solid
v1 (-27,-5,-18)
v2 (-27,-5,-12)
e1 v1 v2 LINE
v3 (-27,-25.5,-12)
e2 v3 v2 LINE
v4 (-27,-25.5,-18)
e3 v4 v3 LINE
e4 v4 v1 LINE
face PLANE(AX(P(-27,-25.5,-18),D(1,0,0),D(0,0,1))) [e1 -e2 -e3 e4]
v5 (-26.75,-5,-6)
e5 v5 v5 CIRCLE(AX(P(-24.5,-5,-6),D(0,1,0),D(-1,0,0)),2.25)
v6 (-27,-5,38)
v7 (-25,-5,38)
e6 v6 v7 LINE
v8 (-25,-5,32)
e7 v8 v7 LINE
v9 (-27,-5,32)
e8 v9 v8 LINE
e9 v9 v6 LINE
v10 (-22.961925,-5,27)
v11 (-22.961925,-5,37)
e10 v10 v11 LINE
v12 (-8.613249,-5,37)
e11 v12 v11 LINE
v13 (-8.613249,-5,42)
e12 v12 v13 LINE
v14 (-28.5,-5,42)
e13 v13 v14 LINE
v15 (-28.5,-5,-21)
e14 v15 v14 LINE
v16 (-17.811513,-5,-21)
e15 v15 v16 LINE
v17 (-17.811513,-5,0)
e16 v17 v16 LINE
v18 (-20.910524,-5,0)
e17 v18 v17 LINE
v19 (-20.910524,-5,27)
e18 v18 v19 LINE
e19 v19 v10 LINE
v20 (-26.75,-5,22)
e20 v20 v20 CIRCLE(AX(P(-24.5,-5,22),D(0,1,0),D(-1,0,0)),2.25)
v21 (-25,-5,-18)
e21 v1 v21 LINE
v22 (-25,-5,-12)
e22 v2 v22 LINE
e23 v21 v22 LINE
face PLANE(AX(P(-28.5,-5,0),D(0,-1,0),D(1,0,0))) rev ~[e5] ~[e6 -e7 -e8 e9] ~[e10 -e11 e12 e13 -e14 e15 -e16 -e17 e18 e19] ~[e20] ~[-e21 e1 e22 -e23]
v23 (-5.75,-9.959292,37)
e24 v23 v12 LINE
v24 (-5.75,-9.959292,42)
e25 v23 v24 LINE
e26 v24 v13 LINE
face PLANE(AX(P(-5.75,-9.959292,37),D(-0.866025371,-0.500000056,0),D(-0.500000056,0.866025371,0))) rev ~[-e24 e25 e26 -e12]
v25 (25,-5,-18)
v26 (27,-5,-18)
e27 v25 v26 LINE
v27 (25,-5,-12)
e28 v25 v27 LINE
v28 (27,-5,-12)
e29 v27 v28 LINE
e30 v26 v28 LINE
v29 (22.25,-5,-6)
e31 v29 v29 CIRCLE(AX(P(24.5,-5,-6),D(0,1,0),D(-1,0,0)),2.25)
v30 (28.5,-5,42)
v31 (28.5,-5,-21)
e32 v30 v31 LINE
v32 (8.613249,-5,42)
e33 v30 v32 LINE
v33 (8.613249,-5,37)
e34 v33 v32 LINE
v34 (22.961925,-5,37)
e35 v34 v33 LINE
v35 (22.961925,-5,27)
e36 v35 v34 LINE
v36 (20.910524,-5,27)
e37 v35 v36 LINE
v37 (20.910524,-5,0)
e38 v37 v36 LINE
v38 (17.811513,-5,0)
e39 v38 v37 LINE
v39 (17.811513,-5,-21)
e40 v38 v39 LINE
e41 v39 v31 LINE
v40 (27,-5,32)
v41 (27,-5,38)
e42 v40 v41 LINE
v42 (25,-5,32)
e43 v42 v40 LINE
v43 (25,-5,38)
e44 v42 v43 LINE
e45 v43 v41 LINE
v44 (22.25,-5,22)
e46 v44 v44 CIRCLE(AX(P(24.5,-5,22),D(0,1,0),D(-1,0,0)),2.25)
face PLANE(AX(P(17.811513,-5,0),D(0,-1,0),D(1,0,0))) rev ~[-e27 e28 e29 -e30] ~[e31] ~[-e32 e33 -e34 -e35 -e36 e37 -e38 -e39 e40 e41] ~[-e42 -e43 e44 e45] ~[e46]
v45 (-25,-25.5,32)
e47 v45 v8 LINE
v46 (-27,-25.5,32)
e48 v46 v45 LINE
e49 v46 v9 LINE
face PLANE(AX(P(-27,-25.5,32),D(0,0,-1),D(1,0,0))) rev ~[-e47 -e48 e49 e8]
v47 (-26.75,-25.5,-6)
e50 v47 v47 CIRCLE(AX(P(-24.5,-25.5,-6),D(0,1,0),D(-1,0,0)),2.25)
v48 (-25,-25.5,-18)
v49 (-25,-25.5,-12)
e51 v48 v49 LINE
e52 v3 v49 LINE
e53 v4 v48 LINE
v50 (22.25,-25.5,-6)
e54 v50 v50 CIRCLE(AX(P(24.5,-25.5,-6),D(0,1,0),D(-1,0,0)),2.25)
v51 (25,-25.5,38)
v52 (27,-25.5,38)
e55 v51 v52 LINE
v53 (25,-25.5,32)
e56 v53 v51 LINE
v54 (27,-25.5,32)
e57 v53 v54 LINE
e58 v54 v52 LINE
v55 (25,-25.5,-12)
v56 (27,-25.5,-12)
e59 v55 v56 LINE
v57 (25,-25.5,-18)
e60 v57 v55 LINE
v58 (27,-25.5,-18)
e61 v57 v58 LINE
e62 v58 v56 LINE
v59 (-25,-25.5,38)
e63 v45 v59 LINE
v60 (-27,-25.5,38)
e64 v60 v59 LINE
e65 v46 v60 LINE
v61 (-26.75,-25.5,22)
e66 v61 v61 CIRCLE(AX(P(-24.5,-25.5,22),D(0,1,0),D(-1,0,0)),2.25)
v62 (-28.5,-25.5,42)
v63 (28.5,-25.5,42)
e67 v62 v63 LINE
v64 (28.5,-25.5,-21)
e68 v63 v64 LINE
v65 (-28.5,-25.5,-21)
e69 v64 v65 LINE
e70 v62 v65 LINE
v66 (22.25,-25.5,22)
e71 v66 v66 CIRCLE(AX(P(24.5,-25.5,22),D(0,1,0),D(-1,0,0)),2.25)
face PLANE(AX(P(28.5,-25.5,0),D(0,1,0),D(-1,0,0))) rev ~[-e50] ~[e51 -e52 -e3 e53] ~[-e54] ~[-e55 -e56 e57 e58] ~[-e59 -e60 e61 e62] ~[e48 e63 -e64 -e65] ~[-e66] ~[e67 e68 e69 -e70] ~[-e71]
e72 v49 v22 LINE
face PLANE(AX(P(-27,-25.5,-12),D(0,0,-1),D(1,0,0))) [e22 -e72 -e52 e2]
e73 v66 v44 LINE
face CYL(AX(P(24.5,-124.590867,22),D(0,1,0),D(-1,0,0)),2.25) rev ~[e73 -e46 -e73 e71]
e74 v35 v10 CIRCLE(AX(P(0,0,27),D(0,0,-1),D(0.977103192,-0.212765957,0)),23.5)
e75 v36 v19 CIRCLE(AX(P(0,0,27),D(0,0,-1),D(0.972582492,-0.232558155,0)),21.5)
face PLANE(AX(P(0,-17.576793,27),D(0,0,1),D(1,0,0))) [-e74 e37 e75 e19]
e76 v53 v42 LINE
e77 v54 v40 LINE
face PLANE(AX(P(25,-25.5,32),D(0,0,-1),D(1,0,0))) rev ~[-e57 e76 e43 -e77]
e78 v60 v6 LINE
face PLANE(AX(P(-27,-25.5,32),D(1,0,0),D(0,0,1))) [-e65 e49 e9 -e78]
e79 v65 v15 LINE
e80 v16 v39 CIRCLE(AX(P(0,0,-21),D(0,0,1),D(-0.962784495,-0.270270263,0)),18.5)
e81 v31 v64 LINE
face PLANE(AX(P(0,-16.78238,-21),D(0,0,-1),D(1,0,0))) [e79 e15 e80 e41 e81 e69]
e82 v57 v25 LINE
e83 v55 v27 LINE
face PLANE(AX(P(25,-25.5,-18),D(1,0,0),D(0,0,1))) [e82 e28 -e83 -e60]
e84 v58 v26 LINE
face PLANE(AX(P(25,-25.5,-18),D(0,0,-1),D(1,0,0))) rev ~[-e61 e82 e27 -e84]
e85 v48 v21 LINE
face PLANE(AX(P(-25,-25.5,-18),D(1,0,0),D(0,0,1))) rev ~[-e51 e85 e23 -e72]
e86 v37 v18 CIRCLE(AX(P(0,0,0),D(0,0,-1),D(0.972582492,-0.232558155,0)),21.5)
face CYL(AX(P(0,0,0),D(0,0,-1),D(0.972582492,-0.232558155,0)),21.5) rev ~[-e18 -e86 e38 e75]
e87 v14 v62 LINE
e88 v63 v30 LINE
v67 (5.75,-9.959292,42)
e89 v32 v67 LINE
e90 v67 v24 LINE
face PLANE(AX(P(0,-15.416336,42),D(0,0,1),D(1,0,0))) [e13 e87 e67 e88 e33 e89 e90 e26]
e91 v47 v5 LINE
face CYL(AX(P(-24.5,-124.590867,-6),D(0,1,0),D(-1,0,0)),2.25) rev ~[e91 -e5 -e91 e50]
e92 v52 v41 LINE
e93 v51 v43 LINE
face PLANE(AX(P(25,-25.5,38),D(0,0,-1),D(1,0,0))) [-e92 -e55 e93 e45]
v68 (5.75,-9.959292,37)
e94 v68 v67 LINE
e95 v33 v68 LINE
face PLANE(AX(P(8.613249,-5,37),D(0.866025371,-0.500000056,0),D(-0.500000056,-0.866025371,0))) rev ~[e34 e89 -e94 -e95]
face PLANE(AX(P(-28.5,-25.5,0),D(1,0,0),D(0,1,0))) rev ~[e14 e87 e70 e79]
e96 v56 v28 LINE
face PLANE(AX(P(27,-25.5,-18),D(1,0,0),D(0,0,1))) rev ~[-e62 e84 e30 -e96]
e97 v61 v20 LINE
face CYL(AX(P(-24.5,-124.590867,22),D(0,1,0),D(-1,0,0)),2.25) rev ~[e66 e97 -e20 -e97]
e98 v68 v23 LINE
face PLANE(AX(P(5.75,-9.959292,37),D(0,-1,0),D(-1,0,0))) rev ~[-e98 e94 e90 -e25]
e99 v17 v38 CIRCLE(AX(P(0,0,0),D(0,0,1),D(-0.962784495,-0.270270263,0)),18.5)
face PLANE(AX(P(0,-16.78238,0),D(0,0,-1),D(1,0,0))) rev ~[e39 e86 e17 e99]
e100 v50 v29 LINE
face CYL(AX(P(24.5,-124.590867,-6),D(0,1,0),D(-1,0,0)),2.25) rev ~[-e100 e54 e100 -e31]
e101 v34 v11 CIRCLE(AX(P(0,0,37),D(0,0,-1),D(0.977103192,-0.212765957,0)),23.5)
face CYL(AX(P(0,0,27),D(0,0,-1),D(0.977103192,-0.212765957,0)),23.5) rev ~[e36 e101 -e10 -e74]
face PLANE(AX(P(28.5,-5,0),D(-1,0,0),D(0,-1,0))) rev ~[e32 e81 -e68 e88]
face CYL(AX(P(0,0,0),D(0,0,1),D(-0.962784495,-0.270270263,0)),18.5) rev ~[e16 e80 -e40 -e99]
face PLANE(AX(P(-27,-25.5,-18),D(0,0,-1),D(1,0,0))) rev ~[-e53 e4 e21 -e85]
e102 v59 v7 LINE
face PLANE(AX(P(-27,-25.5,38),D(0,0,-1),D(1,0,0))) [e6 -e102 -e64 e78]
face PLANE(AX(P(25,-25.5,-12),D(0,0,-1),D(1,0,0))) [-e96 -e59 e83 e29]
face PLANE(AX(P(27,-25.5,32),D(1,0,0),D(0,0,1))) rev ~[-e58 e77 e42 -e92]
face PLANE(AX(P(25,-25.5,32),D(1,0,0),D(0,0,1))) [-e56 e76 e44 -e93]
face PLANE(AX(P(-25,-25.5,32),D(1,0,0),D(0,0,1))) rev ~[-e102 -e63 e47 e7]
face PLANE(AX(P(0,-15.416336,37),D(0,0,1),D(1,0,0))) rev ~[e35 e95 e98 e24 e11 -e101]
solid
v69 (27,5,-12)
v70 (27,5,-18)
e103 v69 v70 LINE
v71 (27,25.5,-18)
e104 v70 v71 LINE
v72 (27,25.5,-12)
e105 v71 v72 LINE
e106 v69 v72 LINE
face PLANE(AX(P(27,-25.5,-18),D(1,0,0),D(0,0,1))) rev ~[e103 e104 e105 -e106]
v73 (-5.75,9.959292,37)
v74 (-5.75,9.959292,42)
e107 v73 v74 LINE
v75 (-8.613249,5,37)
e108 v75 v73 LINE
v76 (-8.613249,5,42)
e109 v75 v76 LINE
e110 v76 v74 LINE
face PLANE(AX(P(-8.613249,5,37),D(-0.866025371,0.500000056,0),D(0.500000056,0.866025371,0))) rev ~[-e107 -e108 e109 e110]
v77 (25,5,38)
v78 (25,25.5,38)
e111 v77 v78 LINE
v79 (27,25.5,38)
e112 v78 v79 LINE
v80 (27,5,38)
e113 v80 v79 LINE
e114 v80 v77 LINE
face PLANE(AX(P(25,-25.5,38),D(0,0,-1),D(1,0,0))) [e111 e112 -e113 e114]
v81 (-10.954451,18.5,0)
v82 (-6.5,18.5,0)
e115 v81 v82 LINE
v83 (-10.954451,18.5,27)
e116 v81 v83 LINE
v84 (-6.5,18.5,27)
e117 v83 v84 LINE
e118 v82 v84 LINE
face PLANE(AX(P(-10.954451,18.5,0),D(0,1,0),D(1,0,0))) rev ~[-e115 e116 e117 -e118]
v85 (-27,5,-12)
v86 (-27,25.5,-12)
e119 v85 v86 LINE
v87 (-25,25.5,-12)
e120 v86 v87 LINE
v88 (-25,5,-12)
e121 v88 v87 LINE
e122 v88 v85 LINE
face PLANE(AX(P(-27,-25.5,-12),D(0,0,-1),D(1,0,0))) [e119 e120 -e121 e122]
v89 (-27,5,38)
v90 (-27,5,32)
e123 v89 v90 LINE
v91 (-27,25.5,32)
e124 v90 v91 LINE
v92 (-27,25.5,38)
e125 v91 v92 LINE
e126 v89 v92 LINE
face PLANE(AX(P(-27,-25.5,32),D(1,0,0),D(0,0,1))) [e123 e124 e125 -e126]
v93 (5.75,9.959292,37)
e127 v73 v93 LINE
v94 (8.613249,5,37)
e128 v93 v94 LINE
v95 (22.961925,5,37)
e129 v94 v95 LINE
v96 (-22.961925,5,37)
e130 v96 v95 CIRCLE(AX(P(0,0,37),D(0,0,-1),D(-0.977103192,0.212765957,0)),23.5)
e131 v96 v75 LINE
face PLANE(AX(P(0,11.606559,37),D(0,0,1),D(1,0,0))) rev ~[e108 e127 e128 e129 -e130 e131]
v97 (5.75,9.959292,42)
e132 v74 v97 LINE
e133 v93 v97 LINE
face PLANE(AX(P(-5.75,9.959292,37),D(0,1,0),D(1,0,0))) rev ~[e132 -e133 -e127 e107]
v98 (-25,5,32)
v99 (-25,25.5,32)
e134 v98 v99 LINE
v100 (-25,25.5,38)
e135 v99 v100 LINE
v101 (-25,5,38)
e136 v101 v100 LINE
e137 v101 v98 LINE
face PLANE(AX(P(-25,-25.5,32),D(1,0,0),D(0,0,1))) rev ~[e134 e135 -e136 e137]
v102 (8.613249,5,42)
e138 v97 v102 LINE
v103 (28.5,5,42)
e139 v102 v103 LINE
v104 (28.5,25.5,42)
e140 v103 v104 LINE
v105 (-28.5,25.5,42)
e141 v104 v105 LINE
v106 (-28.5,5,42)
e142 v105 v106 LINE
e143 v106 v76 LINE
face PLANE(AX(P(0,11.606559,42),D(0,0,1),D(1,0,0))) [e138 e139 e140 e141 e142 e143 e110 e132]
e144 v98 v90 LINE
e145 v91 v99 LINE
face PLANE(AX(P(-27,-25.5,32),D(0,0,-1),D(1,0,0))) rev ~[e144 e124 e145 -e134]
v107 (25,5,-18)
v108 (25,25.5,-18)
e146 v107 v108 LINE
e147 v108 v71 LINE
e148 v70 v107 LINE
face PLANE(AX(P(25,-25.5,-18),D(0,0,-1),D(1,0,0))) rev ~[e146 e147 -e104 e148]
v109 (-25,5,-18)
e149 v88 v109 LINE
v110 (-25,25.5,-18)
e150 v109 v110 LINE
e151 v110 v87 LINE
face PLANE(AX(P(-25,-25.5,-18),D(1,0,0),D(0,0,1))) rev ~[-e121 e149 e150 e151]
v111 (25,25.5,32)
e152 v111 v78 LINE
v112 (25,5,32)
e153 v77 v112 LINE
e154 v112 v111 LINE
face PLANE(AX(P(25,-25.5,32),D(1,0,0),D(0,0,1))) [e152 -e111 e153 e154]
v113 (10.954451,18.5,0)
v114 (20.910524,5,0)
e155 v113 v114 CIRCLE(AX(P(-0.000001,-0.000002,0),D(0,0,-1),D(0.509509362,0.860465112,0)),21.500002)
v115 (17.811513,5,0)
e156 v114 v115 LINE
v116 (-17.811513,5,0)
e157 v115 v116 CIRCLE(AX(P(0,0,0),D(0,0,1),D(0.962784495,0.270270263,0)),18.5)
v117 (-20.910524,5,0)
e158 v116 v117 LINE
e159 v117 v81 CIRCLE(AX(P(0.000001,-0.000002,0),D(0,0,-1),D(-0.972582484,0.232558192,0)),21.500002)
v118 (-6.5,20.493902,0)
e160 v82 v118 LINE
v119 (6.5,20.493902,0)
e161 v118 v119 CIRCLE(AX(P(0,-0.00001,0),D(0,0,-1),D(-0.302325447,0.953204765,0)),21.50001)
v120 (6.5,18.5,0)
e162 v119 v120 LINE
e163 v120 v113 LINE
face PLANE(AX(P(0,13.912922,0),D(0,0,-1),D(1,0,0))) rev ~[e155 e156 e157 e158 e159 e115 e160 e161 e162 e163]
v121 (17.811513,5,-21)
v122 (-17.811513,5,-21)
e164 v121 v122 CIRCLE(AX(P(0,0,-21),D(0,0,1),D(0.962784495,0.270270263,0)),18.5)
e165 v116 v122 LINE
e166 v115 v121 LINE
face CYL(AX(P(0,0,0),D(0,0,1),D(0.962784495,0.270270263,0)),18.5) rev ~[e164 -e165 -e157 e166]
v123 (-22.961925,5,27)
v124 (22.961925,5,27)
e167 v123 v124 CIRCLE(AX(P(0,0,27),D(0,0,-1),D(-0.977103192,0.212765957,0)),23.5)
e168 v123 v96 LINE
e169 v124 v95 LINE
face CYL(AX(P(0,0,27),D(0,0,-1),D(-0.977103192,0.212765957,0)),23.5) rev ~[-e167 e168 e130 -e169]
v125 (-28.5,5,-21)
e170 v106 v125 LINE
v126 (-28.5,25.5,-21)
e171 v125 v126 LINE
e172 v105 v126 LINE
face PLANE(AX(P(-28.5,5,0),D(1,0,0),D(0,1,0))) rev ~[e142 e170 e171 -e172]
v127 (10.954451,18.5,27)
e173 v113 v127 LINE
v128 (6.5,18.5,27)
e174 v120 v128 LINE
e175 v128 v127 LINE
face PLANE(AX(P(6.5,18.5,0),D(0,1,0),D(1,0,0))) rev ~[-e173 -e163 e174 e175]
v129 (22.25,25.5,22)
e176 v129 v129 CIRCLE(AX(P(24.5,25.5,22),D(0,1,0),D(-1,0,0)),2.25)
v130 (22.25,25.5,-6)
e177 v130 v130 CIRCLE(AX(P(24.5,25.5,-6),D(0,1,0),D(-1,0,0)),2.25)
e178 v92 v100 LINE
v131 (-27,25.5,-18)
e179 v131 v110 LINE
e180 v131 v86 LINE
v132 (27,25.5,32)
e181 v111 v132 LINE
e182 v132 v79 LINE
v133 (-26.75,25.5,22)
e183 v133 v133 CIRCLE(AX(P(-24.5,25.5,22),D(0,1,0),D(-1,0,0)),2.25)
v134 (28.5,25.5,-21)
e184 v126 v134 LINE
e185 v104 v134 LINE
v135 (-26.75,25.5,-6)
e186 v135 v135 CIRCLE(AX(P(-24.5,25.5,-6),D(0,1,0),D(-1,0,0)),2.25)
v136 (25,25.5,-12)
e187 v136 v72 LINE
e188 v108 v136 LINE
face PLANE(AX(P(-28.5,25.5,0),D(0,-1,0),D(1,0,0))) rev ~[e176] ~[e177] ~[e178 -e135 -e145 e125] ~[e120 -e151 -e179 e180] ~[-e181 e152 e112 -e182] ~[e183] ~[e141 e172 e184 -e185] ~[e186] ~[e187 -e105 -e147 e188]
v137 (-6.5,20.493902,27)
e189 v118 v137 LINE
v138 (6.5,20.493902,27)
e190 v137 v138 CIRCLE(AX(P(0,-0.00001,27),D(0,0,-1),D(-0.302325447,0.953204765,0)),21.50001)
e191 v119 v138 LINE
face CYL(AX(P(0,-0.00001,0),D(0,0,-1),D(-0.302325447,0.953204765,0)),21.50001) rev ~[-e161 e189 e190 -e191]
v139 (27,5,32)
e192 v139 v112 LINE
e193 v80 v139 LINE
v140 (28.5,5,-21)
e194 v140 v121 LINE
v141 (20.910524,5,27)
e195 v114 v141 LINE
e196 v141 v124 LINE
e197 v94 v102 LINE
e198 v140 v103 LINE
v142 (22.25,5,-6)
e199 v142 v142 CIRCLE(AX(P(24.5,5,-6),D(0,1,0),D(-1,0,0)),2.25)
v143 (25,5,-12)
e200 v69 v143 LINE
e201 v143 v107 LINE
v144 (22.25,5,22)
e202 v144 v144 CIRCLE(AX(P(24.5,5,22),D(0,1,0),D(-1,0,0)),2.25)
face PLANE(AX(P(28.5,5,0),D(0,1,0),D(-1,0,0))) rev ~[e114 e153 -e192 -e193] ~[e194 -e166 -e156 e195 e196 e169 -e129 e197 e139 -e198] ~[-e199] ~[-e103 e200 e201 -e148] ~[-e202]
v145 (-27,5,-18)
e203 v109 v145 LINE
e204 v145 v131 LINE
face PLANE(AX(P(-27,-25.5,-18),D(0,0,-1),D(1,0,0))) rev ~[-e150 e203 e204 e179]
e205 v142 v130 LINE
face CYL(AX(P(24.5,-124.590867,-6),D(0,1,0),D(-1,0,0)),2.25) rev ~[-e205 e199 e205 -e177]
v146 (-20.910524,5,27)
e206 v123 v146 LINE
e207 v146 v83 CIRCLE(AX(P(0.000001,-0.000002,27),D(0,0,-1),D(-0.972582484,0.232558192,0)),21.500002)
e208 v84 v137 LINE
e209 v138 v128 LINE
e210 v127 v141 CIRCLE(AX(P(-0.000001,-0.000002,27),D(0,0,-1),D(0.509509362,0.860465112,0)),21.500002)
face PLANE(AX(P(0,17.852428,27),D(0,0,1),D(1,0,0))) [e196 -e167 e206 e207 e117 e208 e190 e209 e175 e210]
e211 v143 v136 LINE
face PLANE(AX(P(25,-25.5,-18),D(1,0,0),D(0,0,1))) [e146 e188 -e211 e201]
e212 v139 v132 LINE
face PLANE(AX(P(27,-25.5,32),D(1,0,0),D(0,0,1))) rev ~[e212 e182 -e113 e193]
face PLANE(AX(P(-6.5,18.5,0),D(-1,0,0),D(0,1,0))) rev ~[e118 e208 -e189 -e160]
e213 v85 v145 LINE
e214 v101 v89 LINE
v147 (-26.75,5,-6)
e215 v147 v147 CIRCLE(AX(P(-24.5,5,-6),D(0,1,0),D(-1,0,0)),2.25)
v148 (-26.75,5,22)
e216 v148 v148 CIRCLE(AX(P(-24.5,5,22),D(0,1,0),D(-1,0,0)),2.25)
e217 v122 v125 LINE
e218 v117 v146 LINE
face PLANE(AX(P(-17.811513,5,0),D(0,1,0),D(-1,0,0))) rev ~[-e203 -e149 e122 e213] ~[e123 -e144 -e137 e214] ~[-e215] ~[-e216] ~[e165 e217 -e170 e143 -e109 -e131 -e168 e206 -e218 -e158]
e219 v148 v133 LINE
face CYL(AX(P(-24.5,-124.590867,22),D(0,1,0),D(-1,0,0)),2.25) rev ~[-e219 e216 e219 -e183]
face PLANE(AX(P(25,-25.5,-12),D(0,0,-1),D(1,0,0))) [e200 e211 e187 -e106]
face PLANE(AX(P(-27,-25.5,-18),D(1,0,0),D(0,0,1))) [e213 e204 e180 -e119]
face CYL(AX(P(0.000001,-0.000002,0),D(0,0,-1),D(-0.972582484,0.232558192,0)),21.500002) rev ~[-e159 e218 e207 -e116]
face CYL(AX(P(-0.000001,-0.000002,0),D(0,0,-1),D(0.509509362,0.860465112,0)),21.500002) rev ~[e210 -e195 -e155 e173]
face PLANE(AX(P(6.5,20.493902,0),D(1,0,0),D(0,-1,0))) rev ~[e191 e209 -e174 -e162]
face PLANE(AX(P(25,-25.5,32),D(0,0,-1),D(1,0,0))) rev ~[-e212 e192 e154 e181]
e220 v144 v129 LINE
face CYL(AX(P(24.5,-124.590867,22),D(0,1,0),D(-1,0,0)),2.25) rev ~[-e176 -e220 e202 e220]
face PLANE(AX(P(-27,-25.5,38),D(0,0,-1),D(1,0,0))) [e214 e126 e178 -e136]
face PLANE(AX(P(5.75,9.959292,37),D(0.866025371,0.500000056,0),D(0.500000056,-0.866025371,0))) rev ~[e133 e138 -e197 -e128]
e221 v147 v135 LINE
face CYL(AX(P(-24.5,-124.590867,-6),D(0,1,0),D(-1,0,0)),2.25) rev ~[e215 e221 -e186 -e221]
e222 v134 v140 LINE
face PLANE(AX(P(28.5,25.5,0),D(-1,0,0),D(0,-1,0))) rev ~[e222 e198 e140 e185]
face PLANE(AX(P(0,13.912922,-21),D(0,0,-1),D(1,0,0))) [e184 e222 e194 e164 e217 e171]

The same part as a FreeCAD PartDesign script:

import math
import FreeCAD as App
import Part
import Sketcher

V = App.Vector
Q = App.Units.Quantity


def add_polygon(sketch, points):
    """Adds a closed chain of lines whose ends are joined by coincident constraints."""
    first, n = sketch.GeometryCount, len(points)
    for a, b in zip(points, points[1:] + points[:1]):
        sketch.addGeometry(Part.LineSegment(App.Vector(*a, 0), App.Vector(*b, 0)), False)
    for i in range(n):
        sketch.addConstraint(Sketcher.Constraint("Coincident", first + i, 2, first + (i + 1) % n, 1))

doc = App.newDocument("Part")
params = doc.addObject("Spreadsheet::Sheet", "Params")
for row, (alias, value) in enumerate([
    ("sketch1_radius", "21.500002 mm"),
    ("sketch1_width", "57 mm"),
    ("sketch1_height", "20.5 mm"),
    ("pad1_length", "27 mm"),
    ("sketch2_radius", "23.5 mm"),
    ("sketch2_width", "57 mm"),
    ("sketch2_height", "20.5 mm"),
    ("pad2_length", "10 mm"),
    ("sketch3_radius", "23.5 mm"),
    ("sketch3_width", "57 mm"),
    ("sketch3_height", "20.5 mm"),
    ("pad3_length", "10 mm"),
    ("sketch4_width", "57 mm"),
    ("sketch4_width2", "11.5 mm"),
    ("sketch4_height", "20.5 mm"),
    ("pad4_length", "5 mm"),
    ("sketch5_width", "57 mm"),
    ("sketch5_width2", "11.5 mm"),
    ("sketch5_height", "20.5 mm"),
    ("pad5_length", "5 mm"),
    ("sketch6_radius", "18.5 mm"),
    ("sketch6_width", "57 mm"),
    ("sketch6_height", "20.5 mm"),
    ("pad6_length", "21 mm"),
    ("sketch7_radius", "18.5 mm"),
    ("sketch7_width", "57 mm"),
    ("sketch7_height", "20.5 mm"),
    ("pad7_length", "21 mm"),
    ("sketch8_diameter", "4.5 mm"),
    ("hole_diameter", "4.5 mm"),
    ("sketch9_width", "2 mm"),
    ("sketch9_height", "6 mm"),
], start=1):
    params.set(f"A{row}", alias)
    params.set(f"B{row}", "=" + value)
    params.setAlias(f"B{row}", alias)

body = doc.addObject("PartDesign::Body", "Body")
body.AllowCompound = True

# Sketch on XY plane
sketch1 = body.newObject("Sketcher::SketchObject", "Sketch")
sketch1.AttachmentSupport = (doc.getObject("XY_Plane"), [""])
sketch1.MapMode = "FlatFace"
sketch1.addGeometry(Part.LineSegment(V(6.5, 20.5, 0), V(6.5, 18.5, 0)), False)
sketch1.addGeometry(Part.LineSegment(V(6.5, 18.5, 0), V(11, 18.5, 0)), False)
sketch1.addGeometry(Part.ArcOfCircle(Part.Circle(V(0, 0, 0), V(0, 0, 1), 21.5), math.radians(13), math.radians(59)), False)
sketch1.addGeometry(Part.LineSegment(V(20.9, 5, 0), V(28.5, 5, 0)), False)
sketch1.addGeometry(Part.LineSegment(V(28.5, 5, 0), V(28.5, 25.5, 0)), False)
sketch1.addGeometry(Part.LineSegment(V(28.5, 25.5, 0), V(-28.5, 25.5, 0)), False)
sketch1.addGeometry(Part.LineSegment(V(-28.5, 25.5, 0), V(-28.5, 5, 0)), False)
sketch1.addGeometry(Part.LineSegment(V(-28.5, 5, 0), V(-20.9, 5, 0)), False)
sketch1.addGeometry(Part.ArcOfCircle(Part.Circle(V(0, 0, 0), V(0, 0, 1), 21.5), math.radians(121), math.radians(167)), False)
sketch1.addGeometry(Part.LineSegment(V(-11, 18.5, 0), V(-6.5, 18.5, 0)), False)
sketch1.addGeometry(Part.LineSegment(V(-6.5, 18.5, 0), V(-6.5, 20.5, 0)), False)
sketch1.addGeometry(Part.ArcOfCircle(Part.Circle(V(0, 0, 0), V(0, 0, 1), 21.5), math.radians(72), math.radians(108)), False)
sketch1.addGeometry(Part.LineSegment(V(-28.5, -5, 0), V(-28.5, -25.5, 0)), False)
sketch1.addGeometry(Part.LineSegment(V(-28.5, -25.5, 0), V(28.5, -25.5, 0)), False)
sketch1.addGeometry(Part.LineSegment(V(28.5, -25.5, 0), V(28.5, -5, 0)), False)
sketch1.addGeometry(Part.LineSegment(V(28.5, -5, 0), V(20.9, -5, 0)), False)
sketch1.addGeometry(Part.ArcOfCircle(Part.Circle(V(0, 0, 0), V(0, 0, 1), 21.5), math.radians(-167), math.radians(-13)), False)
sketch1.addGeometry(Part.LineSegment(V(-20.9, -5, 0), V(-28.5, -5, 0)), False)
sketch1.addConstraint(Sketcher.Constraint("Coincident", 0, 2, 1, 1))
sketch1.addConstraint(Sketcher.Constraint("Coincident", 1, 2, 2, 2))
sketch1.addConstraint(Sketcher.Constraint("Coincident", 2, 1, 3, 1))
sketch1.addConstraint(Sketcher.Constraint("Coincident", 3, 2, 4, 1))
sketch1.addConstraint(Sketcher.Constraint("Coincident", 4, 2, 5, 1))
sketch1.addConstraint(Sketcher.Constraint("Coincident", 5, 2, 6, 1))
sketch1.addConstraint(Sketcher.Constraint("Coincident", 6, 2, 7, 1))
sketch1.addConstraint(Sketcher.Constraint("Coincident", 7, 2, 8, 2))
sketch1.addConstraint(Sketcher.Constraint("Coincident", 8, 1, 9, 1))
sketch1.addConstraint(Sketcher.Constraint("Coincident", 9, 2, 10, 1))
sketch1.addConstraint(Sketcher.Constraint("Coincident", 10, 2, 11, 2))
sketch1.addConstraint(Sketcher.Constraint("Coincident", 11, 1, 0, 1))
sketch1.addConstraint(Sketcher.Constraint("Coincident", 12, 2, 13, 1))
sketch1.addConstraint(Sketcher.Constraint("Coincident", 13, 2, 14, 1))
sketch1.addConstraint(Sketcher.Constraint("Coincident", 14, 2, 15, 1))
sketch1.addConstraint(Sketcher.Constraint("Coincident", 15, 2, 16, 2))
sketch1.addConstraint(Sketcher.Constraint("Coincident", 16, 1, 17, 1))
sketch1.addConstraint(Sketcher.Constraint("Coincident", 17, 2, 12, 1))
sketch1.addConstraint(Sketcher.Constraint("Vertical", 0))
sketch1.addConstraint(Sketcher.Constraint("Horizontal", 1))
sketch1.addConstraint(Sketcher.Constraint("Horizontal", 3))
sketch1.addConstraint(Sketcher.Constraint("Vertical", 4))
sketch1.addConstraint(Sketcher.Constraint("Horizontal", 5))
sketch1.addConstraint(Sketcher.Constraint("Vertical", 6))
sketch1.addConstraint(Sketcher.Constraint("Horizontal", 7))
sketch1.addConstraint(Sketcher.Constraint("Horizontal", 9))
sketch1.addConstraint(Sketcher.Constraint("Vertical", 10))
sketch1.addConstraint(Sketcher.Constraint("Vertical", 12))
sketch1.addConstraint(Sketcher.Constraint("Horizontal", 13))
sketch1.addConstraint(Sketcher.Constraint("Vertical", 14))
sketch1.addConstraint(Sketcher.Constraint("Horizontal", 15))
sketch1.addConstraint(Sketcher.Constraint("Horizontal", 17))
sketch1.addConstraint(Sketcher.Constraint("Coincident", 2, 3, -1, 1))
sketch1.addConstraint(Sketcher.Constraint("Coincident", 8, 3, -1, 1))
sketch1.addConstraint(Sketcher.Constraint("Coincident", 11, 3, -1, 1))
sketch1.addConstraint(Sketcher.Constraint("Coincident", 16, 3, -1, 1))
sketch1.addConstraint(Sketcher.Constraint("Equal", 2, 8))
sketch1.addConstraint(Sketcher.Constraint("Equal", 8, 16))
sketch1.addConstraint(Sketcher.Constraint("Symmetric", 4, 2, 12, 2, -1, 1))
sketch1.addConstraint(Sketcher.Constraint("Symmetric", 6, 2, 14, 2, -1, 1))
sketch1.addConstraint(Sketcher.Constraint("Symmetric", 3, 2, 6, 2, -2))
sketch1.addConstraint(Sketcher.Constraint("Symmetric", 0, 2, 9, 2, -2))
sketch1.addConstraint(Sketcher.Constraint("Horizontal", 15, 2, 16, 1))
sketch1.addConstraint(Sketcher.Constraint("Radius", 2, Q("21.500002 mm")))
sketch1.addConstraint(Sketcher.Constraint("DistanceX", 5, 2, 5, 1, Q("57 mm")))
sketch1.addConstraint(Sketcher.Constraint("DistanceY", 4, 1, 4, 2, Q("20.5 mm")))
sketch1.addConstraint(Sketcher.Constraint("DistanceY", -1, 1, 2, 1, Q("5 mm")))
sketch1.addConstraint(Sketcher.Constraint("DistanceX", 0, 2, 3, 2, Q("22 mm")))
sketch1.addConstraint(Sketcher.Constraint("DistanceY", 1, 2, 4, 2, Q("7 mm")))
sketch1.addConstraint(Sketcher.Constraint("Radius", 11, Q("21.50001 mm")))
sketch1.setExpression("Constraints[43]", "Params.sketch1_radius")
sketch1.setExpression("Constraints[44]", "Params.sketch1_width")
sketch1.setExpression("Constraints[45]", "Params.sketch1_height")
pad1 = body.newObject("PartDesign::Pad", "Pad")
pad1.Profile = sketch1
pad1.setExpression("Length", "Params.pad1_length")

# Sketch on XY plane
sketch2 = body.newObject("Sketcher::SketchObject", "Sketch001")
sketch2.AttachmentSupport = (doc.getObject("XY_Plane"), [""])
sketch2.MapMode = "FlatFace"
sketch2.AttachmentOffset = App.Placement(V(0, 0, 27), App.Rotation())
sketch2.addGeometry(Part.LineSegment(V(28, 5, 0), V(28, 26, 0)), False)
sketch2.addGeometry(Part.LineSegment(V(28, 26, 0), V(-28, 26, 0)), False)
sketch2.addGeometry(Part.LineSegment(V(-28, 26, 0), V(-28, 5, 0)), False)
sketch2.addGeometry(Part.LineSegment(V(-28, 5, 0), V(-23, 5, 0)), False)
sketch2.addGeometry(Part.ArcOfCircle(Part.Circle(V(0, 0, 0), V(0, 0, 1), 23), math.radians(12), math.radians(168)), False)
sketch2.addGeometry(Part.LineSegment(V(23, 5, 0), V(28, 5, 0)), False)
sketch2.addConstraint(Sketcher.Constraint("Coincident", 0, 2, 1, 1))
sketch2.addConstraint(Sketcher.Constraint("Coincident", 1, 2, 2, 1))
sketch2.addConstraint(Sketcher.Constraint("Coincident", 2, 2, 3, 1))
sketch2.addConstraint(Sketcher.Constraint("Coincident", 3, 2, 4, 2))
sketch2.addConstraint(Sketcher.Constraint("Coincident", 4, 1, 5, 1))
sketch2.addConstraint(Sketcher.Constraint("Coincident", 5, 2, 0, 1))
sketch2.addConstraint(Sketcher.Constraint("Vertical", 0))
sketch2.addConstraint(Sketcher.Constraint("Horizontal", 1))
sketch2.addConstraint(Sketcher.Constraint("Vertical", 2))
sketch2.addConstraint(Sketcher.Constraint("Horizontal", 3))
sketch2.addConstraint(Sketcher.Constraint("Horizontal", 5))
sketch2.addConstraint(Sketcher.Constraint("Coincident", 4, 3, -1, 1))
sketch2.addConstraint(Sketcher.Constraint("Symmetric", 2, 2, 5, 2, -2))
sketch2.addConstraint(Sketcher.Constraint("Radius", 4, Q("23.5 mm")))
sketch2.addConstraint(Sketcher.Constraint("DistanceX", 1, 2, 1, 1, Q("57 mm")))
sketch2.addConstraint(Sketcher.Constraint("DistanceY", 0, 1, 0, 2, Q("20.5 mm")))
sketch2.addConstraint(Sketcher.Constraint("DistanceY", -1, 1, 2, 2, Q("5 mm")))
sketch2.setExpression("Constraints[13]", "Params.sketch2_radius")
sketch2.setExpression("Constraints[14]", "Params.sketch2_width")
sketch2.setExpression("Constraints[15]", "Params.sketch2_height")
pad2 = body.newObject("PartDesign::Pad", "Pad001")
pad2.Profile = sketch2
pad2.setExpression("Length", "Params.pad2_length")

# Sketch on XY plane
sketch3 = body.newObject("Sketcher::SketchObject", "Sketch002")
sketch3.AttachmentSupport = (doc.getObject("XY_Plane"), [""])
sketch3.MapMode = "FlatFace"
sketch3.AttachmentOffset = App.Placement(V(0, 0, 27), App.Rotation())
sketch3.addGeometry(Part.LineSegment(V(-23, -5, 0), V(-28, -5, 0)), False)
sketch3.addGeometry(Part.LineSegment(V(-28, -5, 0), V(-28, -26, 0)), False)
sketch3.addGeometry(Part.LineSegment(V(-28, -26, 0), V(28, -26, 0)), False)
sketch3.addGeometry(Part.LineSegment(V(28, -26, 0), V(28, -5, 0)), False)
sketch3.addGeometry(Part.LineSegment(V(28, -5, 0), V(23, -5, 0)), False)
sketch3.addGeometry(Part.ArcOfCircle(Part.Circle(V(0, 0, 0), V(0, 0, 1), 23), math.radians(-168), math.radians(-12)), False)
sketch3.addConstraint(Sketcher.Constraint("Coincident", 0, 2, 1, 1))
sketch3.addConstraint(Sketcher.Constraint("Coincident", 1, 2, 2, 1))
sketch3.addConstraint(Sketcher.Constraint("Coincident", 2, 2, 3, 1))
sketch3.addConstraint(Sketcher.Constraint("Coincident", 3, 2, 4, 1))
sketch3.addConstraint(Sketcher.Constraint("Coincident", 4, 2, 5, 2))
sketch3.addConstraint(Sketcher.Constraint("Coincident", 5, 1, 0, 1))
sketch3.addConstraint(Sketcher.Constraint("Horizontal", 0))
sketch3.addConstraint(Sketcher.Constraint("Vertical", 1))
sketch3.addConstraint(Sketcher.Constraint("Horizontal", 2))
sketch3.addConstraint(Sketcher.Constraint("Vertical", 3))
sketch3.addConstraint(Sketcher.Constraint("Horizontal", 4))
sketch3.addConstraint(Sketcher.Constraint("Coincident", 5, 3, -1, 1))
sketch3.addConstraint(Sketcher.Constraint("Symmetric", 0, 2, 3, 2, -2))
sketch3.addConstraint(Sketcher.Constraint("Radius", 5, Q("23.5 mm")))
sketch3.addConstraint(Sketcher.Constraint("DistanceX", 2, 1, 2, 2, Q("57 mm")))
sketch3.addConstraint(Sketcher.Constraint("DistanceY", 1, 2, 1, 1, Q("20.5 mm")))
sketch3.addConstraint(Sketcher.Constraint("DistanceY", 0, 2, -1, 1, Q("5 mm")))
sketch3.setExpression("Constraints[13]", "Params.sketch3_radius")
sketch3.setExpression("Constraints[14]", "Params.sketch3_width")
sketch3.setExpression("Constraints[15]", "Params.sketch3_height")
pad3 = body.newObject("PartDesign::Pad", "Pad002")
pad3.Profile = sketch3
pad3.setExpression("Length", "Params.pad3_length")

# Sketch on XY plane
sketch4 = body.newObject("Sketcher::SketchObject", "Sketch003")
sketch4.AttachmentSupport = (doc.getObject("XY_Plane"), [""])
sketch4.MapMode = "FlatFace"
sketch4.AttachmentOffset = App.Placement(V(0, 0, 37), App.Rotation())
add_polygon(sketch4, [(-9, 5), (-6, 10), (6, 10), (9, 5), (28, 5), (28, 26), (-28, 26), (-28, 5)])  # lines 0-7
sketch4.addConstraint(Sketcher.Constraint("Horizontal", 1))
sketch4.addConstraint(Sketcher.Constraint("Horizontal", 3))
sketch4.addConstraint(Sketcher.Constraint("Vertical", 4))
sketch4.addConstraint(Sketcher.Constraint("Horizontal", 5))
sketch4.addConstraint(Sketcher.Constraint("Vertical", 6))
sketch4.addConstraint(Sketcher.Constraint("Horizontal", 7))
sketch4.addConstraint(Sketcher.Constraint("Symmetric", 3, 2, 6, 2, -2))
sketch4.addConstraint(Sketcher.Constraint("Equal", 3, 7))
sketch4.addConstraint(Sketcher.Constraint("Equal", 0, 2))
sketch4.addConstraint(Sketcher.Constraint("DistanceX", 5, 2, 5, 1, Q("57 mm")))
sketch4.addConstraint(Sketcher.Constraint("Angle", 0, Q("59.999996 deg")))
sketch4.addConstraint(Sketcher.Constraint("DistanceX", 1, 1, 1, 2, Q("11.5 mm")))
sketch4.addConstraint(Sketcher.Constraint("DistanceY", 4, 1, 4, 2, Q("20.5 mm")))
sketch4.addConstraint(Sketcher.Constraint("DistanceY", -1, 1, 2, 2, Q("5 mm")))
sketch4.addConstraint(Sketcher.Constraint("DistanceX", 3, 1, 3, 2, Q("19.886751 mm")))
sketch4.setExpression("Constraints[17]", "Params.sketch4_width")
sketch4.setExpression("Constraints[19]", "Params.sketch4_width2")
sketch4.setExpression("Constraints[20]", "Params.sketch4_height")
pad4 = body.newObject("PartDesign::Pad", "Pad003")
pad4.Profile = sketch4
pad4.setExpression("Length", "Params.pad4_length")

# Sketch on XY plane
sketch5 = body.newObject("Sketcher::SketchObject", "Sketch004")
sketch5.AttachmentSupport = (doc.getObject("XY_Plane"), [""])
sketch5.MapMode = "FlatFace"
sketch5.AttachmentOffset = App.Placement(V(0, 0, 37), App.Rotation())
add_polygon(sketch5, [(-9, -5), (-28, -5), (-28, -26), (28, -26), (28, -5), (9, -5), (6, -10), (-6, -10)])  # lines 0-7
sketch5.addConstraint(Sketcher.Constraint("Horizontal", 0))
sketch5.addConstraint(Sketcher.Constraint("Vertical", 1))
sketch5.addConstraint(Sketcher.Constraint("Horizontal", 2))
sketch5.addConstraint(Sketcher.Constraint("Vertical", 3))
sketch5.addConstraint(Sketcher.Constraint("Horizontal", 4))
sketch5.addConstraint(Sketcher.Constraint("Horizontal", 6))
sketch5.addConstraint(Sketcher.Constraint("Symmetric", 0, 2, 3, 2, -2))
sketch5.addConstraint(Sketcher.Constraint("Equal", 0, 4))
sketch5.addConstraint(Sketcher.Constraint("Equal", 5, 7))
sketch5.addConstraint(Sketcher.Constraint("DistanceX", 2, 1, 2, 2, Q("57 mm")))
sketch5.addConstraint(Sketcher.Constraint("Angle", 5, Q("-120.000004 deg")))
sketch5.addConstraint(Sketcher.Constraint("DistanceX", 6, 2, 6, 1, Q("11.5 mm")))
sketch5.addConstraint(Sketcher.Constraint("DistanceY", 1, 2, 1, 1, Q("20.5 mm")))
sketch5.addConstraint(Sketcher.Constraint("DistanceY", 0, 2, -1, 1, Q("5 mm")))
sketch5.addConstraint(Sketcher.Constraint("DistanceX", 0, 2, 0, 1, Q("19.886751 mm")))
sketch5.setExpression("Constraints[17]", "Params.sketch5_width")
sketch5.setExpression("Constraints[19]", "Params.sketch5_width2")
sketch5.setExpression("Constraints[20]", "Params.sketch5_height")
pad5 = body.newObject("PartDesign::Pad", "Pad004")
pad5.Profile = sketch5
pad5.setExpression("Length", "Params.pad5_length")

# Sketch on XY plane
sketch6 = body.newObject("Sketcher::SketchObject", "Sketch005")
sketch6.AttachmentSupport = (doc.getObject("XY_Plane"), [""])
sketch6.MapMode = "FlatFace"
sketch6.addGeometry(Part.LineSegment(V(18, -5, 0), V(28, -5, 0)), False)
sketch6.addGeometry(Part.LineSegment(V(28, -5, 0), V(28, -26, 0)), False)
sketch6.addGeometry(Part.LineSegment(V(28, -26, 0), V(-28, -26, 0)), False)
sketch6.addGeometry(Part.LineSegment(V(-28, -26, 0), V(-28, -5, 0)), False)
sketch6.addGeometry(Part.LineSegment(V(-28, -5, 0), V(-18, -5, 0)), False)
sketch6.addGeometry(Part.ArcOfCircle(Part.Circle(V(0, 0, 0), V(0, 0, 1), 18), math.radians(-164), math.radians(-16)), False)
sketch6.addConstraint(Sketcher.Constraint("Coincident", 0, 2, 1, 1))
sketch6.addConstraint(Sketcher.Constraint("Coincident", 1, 2, 2, 1))
sketch6.addConstraint(Sketcher.Constraint("Coincident", 2, 2, 3, 1))
sketch6.addConstraint(Sketcher.Constraint("Coincident", 3, 2, 4, 1))
sketch6.addConstraint(Sketcher.Constraint("Coincident", 4, 2, 5, 1))
sketch6.addConstraint(Sketcher.Constraint("Coincident", 5, 2, 0, 1))
sketch6.addConstraint(Sketcher.Constraint("Horizontal", 0))
sketch6.addConstraint(Sketcher.Constraint("Vertical", 1))
sketch6.addConstraint(Sketcher.Constraint("Horizontal", 2))
sketch6.addConstraint(Sketcher.Constraint("Vertical", 3))
sketch6.addConstraint(Sketcher.Constraint("Horizontal", 4))
sketch6.addConstraint(Sketcher.Constraint("Coincident", 5, 3, -1, 1))
sketch6.addConstraint(Sketcher.Constraint("Symmetric", 0, 2, 3, 2, -2))
sketch6.addConstraint(Sketcher.Constraint("Radius", 5, Q("18.5 mm")))
sketch6.addConstraint(Sketcher.Constraint("DistanceX", 2, 2, 2, 1, Q("57 mm")))
sketch6.addConstraint(Sketcher.Constraint("DistanceY", 1, 2, 1, 1, Q("20.5 mm")))
sketch6.addConstraint(Sketcher.Constraint("DistanceY", 0, 2, -1, 1, Q("5 mm")))
sketch6.setExpression("Constraints[13]", "Params.sketch6_radius")
sketch6.setExpression("Constraints[14]", "Params.sketch6_width")
sketch6.setExpression("Constraints[15]", "Params.sketch6_height")
pad6 = body.newObject("PartDesign::Pad", "Pad005")
pad6.Profile = sketch6
pad6.setExpression("Length", "Params.pad6_length")
pad6.Reversed = True

# Sketch on XY plane
sketch7 = body.newObject("Sketcher::SketchObject", "Sketch006")
sketch7.AttachmentSupport = (doc.getObject("XY_Plane"), [""])
sketch7.MapMode = "FlatFace"
sketch7.addGeometry(Part.LineSegment(V(-18, 5, 0), V(-28, 5, 0)), False)
sketch7.addGeometry(Part.LineSegment(V(-28, 5, 0), V(-28, 26, 0)), False)
sketch7.addGeometry(Part.LineSegment(V(-28, 26, 0), V(28, 26, 0)), False)
sketch7.addGeometry(Part.LineSegment(V(28, 26, 0), V(28, 5, 0)), False)
sketch7.addGeometry(Part.LineSegment(V(28, 5, 0), V(18, 5, 0)), False)
sketch7.addGeometry(Part.ArcOfCircle(Part.Circle(V(0, 0, 0), V(0, 0, 1), 18), math.radians(16), math.radians(164)), False)
sketch7.addConstraint(Sketcher.Constraint("Coincident", 0, 2, 1, 1))
sketch7.addConstraint(Sketcher.Constraint("Coincident", 1, 2, 2, 1))
sketch7.addConstraint(Sketcher.Constraint("Coincident", 2, 2, 3, 1))
sketch7.addConstraint(Sketcher.Constraint("Coincident", 3, 2, 4, 1))
sketch7.addConstraint(Sketcher.Constraint("Coincident", 4, 2, 5, 1))
sketch7.addConstraint(Sketcher.Constraint("Coincident", 5, 2, 0, 1))
sketch7.addConstraint(Sketcher.Constraint("Horizontal", 0))
sketch7.addConstraint(Sketcher.Constraint("Vertical", 1))
sketch7.addConstraint(Sketcher.Constraint("Horizontal", 2))
sketch7.addConstraint(Sketcher.Constraint("Vertical", 3))
sketch7.addConstraint(Sketcher.Constraint("Horizontal", 4))
sketch7.addConstraint(Sketcher.Constraint("Coincident", 5, 3, -1, 1))
sketch7.addConstraint(Sketcher.Constraint("Symmetric", 0, 2, 3, 2, -2))
sketch7.addConstraint(Sketcher.Constraint("Radius", 5, Q("18.5 mm")))
sketch7.addConstraint(Sketcher.Constraint("DistanceX", 2, 1, 2, 2, Q("57 mm")))
sketch7.addConstraint(Sketcher.Constraint("DistanceY", 1, 1, 1, 2, Q("20.5 mm")))
sketch7.addConstraint(Sketcher.Constraint("DistanceY", -1, 1, 0, 2, Q("5 mm")))
sketch7.setExpression("Constraints[13]", "Params.sketch7_radius")
sketch7.setExpression("Constraints[14]", "Params.sketch7_width")
sketch7.setExpression("Constraints[15]", "Params.sketch7_height")
pad7 = body.newObject("PartDesign::Pad", "Pad006")
pad7.Profile = sketch7
pad7.setExpression("Length", "Params.pad7_length")
pad7.Reversed = True

# Sketch on XZ plane
sketch8 = body.newObject("Sketcher::SketchObject", "Sketch007")
sketch8.AttachmentSupport = (doc.getObject("XZ_Plane"), [""])
sketch8.MapMode = "FlatFace"
sketch8.AttachmentOffset = App.Placement(V(0, 0, 25.5), App.Rotation())
sketch8.addGeometry(Part.Circle(V(24.5, 22, 0), V(0, 0, 1), 2.2), False)
sketch8.addGeometry(Part.Circle(V(24.5, -6, 0), V(0, 0, 1), 2.2), False)
sketch8.addGeometry(Part.Circle(V(-24.5, 22, 0), V(0, 0, 1), 2.2), False)
sketch8.addGeometry(Part.Circle(V(-24.5, -6, 0), V(0, 0, 1), 2.2), False)
sketch8.addConstraint(Sketcher.Constraint("Equal", 0, 1))
sketch8.addConstraint(Sketcher.Constraint("Equal", 1, 2))
sketch8.addConstraint(Sketcher.Constraint("Equal", 2, 3))
sketch8.addConstraint(Sketcher.Constraint("Symmetric", 0, 3, 2, 3, -2))
sketch8.addConstraint(Sketcher.Constraint("Symmetric", 1, 3, 3, 3, -2))
sketch8.addConstraint(Sketcher.Constraint("Vertical", 0, 3, 1, 3))
sketch8.addConstraint(Sketcher.Constraint("Diameter", 0, Q("4.5 mm")))
sketch8.addConstraint(Sketcher.Constraint("DistanceY", -1, 1, 0, 3, Q("22 mm")))
sketch8.addConstraint(Sketcher.Constraint("DistanceY", 1, 3, -1, 1, Q("6 mm")))
sketch8.addConstraint(Sketcher.Constraint("DistanceX", 2, 3, 0, 3, Q("49 mm")))
sketch8.setExpression("Constraints[6]", "Params.sketch8_diameter")
doc.recompute()
hole = body.newObject("PartDesign::Hole", "Hole")
hole.Profile = sketch8
hole.ThreadType = "None"
hole.setExpression("Diameter", "Params.hole_diameter")
hole.DepthType = "ThroughAll"

# Sketch on XZ plane
sketch9 = body.newObject("Sketcher::SketchObject", "Sketch008")
sketch9.AttachmentSupport = (doc.getObject("XZ_Plane"), [""])
sketch9.MapMode = "FlatFace"
sketch9.AttachmentOffset = App.Placement(V(0, 0, 25.5), App.Rotation())
add_polygon(sketch9, [(-27, 38), (-27, 32), (-25, 32), (-25, 38)])  # lines 0-3
add_polygon(sketch9, [(25, 38), (25, 32), (27, 32), (27, 38)])  # lines 4-7
add_polygon(sketch9, [(-27, -12), (-27, -18), (-25, -18), (-25, -12)])  # lines 8-11
add_polygon(sketch9, [(25, -12), (25, -18), (27, -18), (27, -12)])  # lines 12-15
sketch9.addConstraint(Sketcher.Constraint("Vertical", 0))
sketch9.addConstraint(Sketcher.Constraint("Horizontal", 1))
sketch9.addConstraint(Sketcher.Constraint("Vertical", 2))
sketch9.addConstraint(Sketcher.Constraint("Horizontal", 3))
sketch9.addConstraint(Sketcher.Constraint("Vertical", 4))
sketch9.addConstraint(Sketcher.Constraint("Horizontal", 5))
sketch9.addConstraint(Sketcher.Constraint("Vertical", 6))
sketch9.addConstraint(Sketcher.Constraint("Horizontal", 7))
sketch9.addConstraint(Sketcher.Constraint("Vertical", 8))
sketch9.addConstraint(Sketcher.Constraint("Horizontal", 9))
sketch9.addConstraint(Sketcher.Constraint("Vertical", 10))
sketch9.addConstraint(Sketcher.Constraint("Horizontal", 11))
sketch9.addConstraint(Sketcher.Constraint("Vertical", 12))
sketch9.addConstraint(Sketcher.Constraint("Horizontal", 13))
sketch9.addConstraint(Sketcher.Constraint("Vertical", 14))
sketch9.addConstraint(Sketcher.Constraint("Horizontal", 15))
sketch9.addConstraint(Sketcher.Constraint("Symmetric", 1, 2, 4, 2, -2))
sketch9.addConstraint(Sketcher.Constraint("Symmetric", 3, 2, 6, 2, -2))
sketch9.addConstraint(Sketcher.Constraint("Symmetric", 9, 2, 12, 2, -2))
sketch9.addConstraint(Sketcher.Constraint("Symmetric", 11, 2, 14, 2, -2))
sketch9.addConstraint(Sketcher.Constraint("Vertical", 3, 2, 8, 2))
sketch9.addConstraint(Sketcher.Constraint("Vertical", 2, 2, 9, 2))
sketch9.addConstraint(Sketcher.Constraint("Equal", 6, 8))
sketch9.addConstraint(Sketcher.Constraint("DistanceX", 1, 1, 1, 2, Q("2 mm")))
sketch9.addConstraint(Sketcher.Constraint("DistanceY", 0, 2, 0, 1, Q("6 mm")))
sketch9.addConstraint(Sketcher.Constraint("DistanceX", 0, 2, -1, 1, Q("27 mm")))
sketch9.addConstraint(Sketcher.Constraint("DistanceY", -1, 1, 0, 2, Q("32 mm")))
sketch9.addConstraint(Sketcher.Constraint("DistanceY", 8, 2, -1, 1, Q("18 mm")))
sketch9.setExpression("Constraints[39]", "Params.sketch9_width")
sketch9.setExpression("Constraints[40]", "Params.sketch9_height")
pocket1 = body.newObject("PartDesign::Pocket", "Pocket")
pocket1.Profile = sketch9
pocket1.Type = "ThroughAll"

doc.recompute()
